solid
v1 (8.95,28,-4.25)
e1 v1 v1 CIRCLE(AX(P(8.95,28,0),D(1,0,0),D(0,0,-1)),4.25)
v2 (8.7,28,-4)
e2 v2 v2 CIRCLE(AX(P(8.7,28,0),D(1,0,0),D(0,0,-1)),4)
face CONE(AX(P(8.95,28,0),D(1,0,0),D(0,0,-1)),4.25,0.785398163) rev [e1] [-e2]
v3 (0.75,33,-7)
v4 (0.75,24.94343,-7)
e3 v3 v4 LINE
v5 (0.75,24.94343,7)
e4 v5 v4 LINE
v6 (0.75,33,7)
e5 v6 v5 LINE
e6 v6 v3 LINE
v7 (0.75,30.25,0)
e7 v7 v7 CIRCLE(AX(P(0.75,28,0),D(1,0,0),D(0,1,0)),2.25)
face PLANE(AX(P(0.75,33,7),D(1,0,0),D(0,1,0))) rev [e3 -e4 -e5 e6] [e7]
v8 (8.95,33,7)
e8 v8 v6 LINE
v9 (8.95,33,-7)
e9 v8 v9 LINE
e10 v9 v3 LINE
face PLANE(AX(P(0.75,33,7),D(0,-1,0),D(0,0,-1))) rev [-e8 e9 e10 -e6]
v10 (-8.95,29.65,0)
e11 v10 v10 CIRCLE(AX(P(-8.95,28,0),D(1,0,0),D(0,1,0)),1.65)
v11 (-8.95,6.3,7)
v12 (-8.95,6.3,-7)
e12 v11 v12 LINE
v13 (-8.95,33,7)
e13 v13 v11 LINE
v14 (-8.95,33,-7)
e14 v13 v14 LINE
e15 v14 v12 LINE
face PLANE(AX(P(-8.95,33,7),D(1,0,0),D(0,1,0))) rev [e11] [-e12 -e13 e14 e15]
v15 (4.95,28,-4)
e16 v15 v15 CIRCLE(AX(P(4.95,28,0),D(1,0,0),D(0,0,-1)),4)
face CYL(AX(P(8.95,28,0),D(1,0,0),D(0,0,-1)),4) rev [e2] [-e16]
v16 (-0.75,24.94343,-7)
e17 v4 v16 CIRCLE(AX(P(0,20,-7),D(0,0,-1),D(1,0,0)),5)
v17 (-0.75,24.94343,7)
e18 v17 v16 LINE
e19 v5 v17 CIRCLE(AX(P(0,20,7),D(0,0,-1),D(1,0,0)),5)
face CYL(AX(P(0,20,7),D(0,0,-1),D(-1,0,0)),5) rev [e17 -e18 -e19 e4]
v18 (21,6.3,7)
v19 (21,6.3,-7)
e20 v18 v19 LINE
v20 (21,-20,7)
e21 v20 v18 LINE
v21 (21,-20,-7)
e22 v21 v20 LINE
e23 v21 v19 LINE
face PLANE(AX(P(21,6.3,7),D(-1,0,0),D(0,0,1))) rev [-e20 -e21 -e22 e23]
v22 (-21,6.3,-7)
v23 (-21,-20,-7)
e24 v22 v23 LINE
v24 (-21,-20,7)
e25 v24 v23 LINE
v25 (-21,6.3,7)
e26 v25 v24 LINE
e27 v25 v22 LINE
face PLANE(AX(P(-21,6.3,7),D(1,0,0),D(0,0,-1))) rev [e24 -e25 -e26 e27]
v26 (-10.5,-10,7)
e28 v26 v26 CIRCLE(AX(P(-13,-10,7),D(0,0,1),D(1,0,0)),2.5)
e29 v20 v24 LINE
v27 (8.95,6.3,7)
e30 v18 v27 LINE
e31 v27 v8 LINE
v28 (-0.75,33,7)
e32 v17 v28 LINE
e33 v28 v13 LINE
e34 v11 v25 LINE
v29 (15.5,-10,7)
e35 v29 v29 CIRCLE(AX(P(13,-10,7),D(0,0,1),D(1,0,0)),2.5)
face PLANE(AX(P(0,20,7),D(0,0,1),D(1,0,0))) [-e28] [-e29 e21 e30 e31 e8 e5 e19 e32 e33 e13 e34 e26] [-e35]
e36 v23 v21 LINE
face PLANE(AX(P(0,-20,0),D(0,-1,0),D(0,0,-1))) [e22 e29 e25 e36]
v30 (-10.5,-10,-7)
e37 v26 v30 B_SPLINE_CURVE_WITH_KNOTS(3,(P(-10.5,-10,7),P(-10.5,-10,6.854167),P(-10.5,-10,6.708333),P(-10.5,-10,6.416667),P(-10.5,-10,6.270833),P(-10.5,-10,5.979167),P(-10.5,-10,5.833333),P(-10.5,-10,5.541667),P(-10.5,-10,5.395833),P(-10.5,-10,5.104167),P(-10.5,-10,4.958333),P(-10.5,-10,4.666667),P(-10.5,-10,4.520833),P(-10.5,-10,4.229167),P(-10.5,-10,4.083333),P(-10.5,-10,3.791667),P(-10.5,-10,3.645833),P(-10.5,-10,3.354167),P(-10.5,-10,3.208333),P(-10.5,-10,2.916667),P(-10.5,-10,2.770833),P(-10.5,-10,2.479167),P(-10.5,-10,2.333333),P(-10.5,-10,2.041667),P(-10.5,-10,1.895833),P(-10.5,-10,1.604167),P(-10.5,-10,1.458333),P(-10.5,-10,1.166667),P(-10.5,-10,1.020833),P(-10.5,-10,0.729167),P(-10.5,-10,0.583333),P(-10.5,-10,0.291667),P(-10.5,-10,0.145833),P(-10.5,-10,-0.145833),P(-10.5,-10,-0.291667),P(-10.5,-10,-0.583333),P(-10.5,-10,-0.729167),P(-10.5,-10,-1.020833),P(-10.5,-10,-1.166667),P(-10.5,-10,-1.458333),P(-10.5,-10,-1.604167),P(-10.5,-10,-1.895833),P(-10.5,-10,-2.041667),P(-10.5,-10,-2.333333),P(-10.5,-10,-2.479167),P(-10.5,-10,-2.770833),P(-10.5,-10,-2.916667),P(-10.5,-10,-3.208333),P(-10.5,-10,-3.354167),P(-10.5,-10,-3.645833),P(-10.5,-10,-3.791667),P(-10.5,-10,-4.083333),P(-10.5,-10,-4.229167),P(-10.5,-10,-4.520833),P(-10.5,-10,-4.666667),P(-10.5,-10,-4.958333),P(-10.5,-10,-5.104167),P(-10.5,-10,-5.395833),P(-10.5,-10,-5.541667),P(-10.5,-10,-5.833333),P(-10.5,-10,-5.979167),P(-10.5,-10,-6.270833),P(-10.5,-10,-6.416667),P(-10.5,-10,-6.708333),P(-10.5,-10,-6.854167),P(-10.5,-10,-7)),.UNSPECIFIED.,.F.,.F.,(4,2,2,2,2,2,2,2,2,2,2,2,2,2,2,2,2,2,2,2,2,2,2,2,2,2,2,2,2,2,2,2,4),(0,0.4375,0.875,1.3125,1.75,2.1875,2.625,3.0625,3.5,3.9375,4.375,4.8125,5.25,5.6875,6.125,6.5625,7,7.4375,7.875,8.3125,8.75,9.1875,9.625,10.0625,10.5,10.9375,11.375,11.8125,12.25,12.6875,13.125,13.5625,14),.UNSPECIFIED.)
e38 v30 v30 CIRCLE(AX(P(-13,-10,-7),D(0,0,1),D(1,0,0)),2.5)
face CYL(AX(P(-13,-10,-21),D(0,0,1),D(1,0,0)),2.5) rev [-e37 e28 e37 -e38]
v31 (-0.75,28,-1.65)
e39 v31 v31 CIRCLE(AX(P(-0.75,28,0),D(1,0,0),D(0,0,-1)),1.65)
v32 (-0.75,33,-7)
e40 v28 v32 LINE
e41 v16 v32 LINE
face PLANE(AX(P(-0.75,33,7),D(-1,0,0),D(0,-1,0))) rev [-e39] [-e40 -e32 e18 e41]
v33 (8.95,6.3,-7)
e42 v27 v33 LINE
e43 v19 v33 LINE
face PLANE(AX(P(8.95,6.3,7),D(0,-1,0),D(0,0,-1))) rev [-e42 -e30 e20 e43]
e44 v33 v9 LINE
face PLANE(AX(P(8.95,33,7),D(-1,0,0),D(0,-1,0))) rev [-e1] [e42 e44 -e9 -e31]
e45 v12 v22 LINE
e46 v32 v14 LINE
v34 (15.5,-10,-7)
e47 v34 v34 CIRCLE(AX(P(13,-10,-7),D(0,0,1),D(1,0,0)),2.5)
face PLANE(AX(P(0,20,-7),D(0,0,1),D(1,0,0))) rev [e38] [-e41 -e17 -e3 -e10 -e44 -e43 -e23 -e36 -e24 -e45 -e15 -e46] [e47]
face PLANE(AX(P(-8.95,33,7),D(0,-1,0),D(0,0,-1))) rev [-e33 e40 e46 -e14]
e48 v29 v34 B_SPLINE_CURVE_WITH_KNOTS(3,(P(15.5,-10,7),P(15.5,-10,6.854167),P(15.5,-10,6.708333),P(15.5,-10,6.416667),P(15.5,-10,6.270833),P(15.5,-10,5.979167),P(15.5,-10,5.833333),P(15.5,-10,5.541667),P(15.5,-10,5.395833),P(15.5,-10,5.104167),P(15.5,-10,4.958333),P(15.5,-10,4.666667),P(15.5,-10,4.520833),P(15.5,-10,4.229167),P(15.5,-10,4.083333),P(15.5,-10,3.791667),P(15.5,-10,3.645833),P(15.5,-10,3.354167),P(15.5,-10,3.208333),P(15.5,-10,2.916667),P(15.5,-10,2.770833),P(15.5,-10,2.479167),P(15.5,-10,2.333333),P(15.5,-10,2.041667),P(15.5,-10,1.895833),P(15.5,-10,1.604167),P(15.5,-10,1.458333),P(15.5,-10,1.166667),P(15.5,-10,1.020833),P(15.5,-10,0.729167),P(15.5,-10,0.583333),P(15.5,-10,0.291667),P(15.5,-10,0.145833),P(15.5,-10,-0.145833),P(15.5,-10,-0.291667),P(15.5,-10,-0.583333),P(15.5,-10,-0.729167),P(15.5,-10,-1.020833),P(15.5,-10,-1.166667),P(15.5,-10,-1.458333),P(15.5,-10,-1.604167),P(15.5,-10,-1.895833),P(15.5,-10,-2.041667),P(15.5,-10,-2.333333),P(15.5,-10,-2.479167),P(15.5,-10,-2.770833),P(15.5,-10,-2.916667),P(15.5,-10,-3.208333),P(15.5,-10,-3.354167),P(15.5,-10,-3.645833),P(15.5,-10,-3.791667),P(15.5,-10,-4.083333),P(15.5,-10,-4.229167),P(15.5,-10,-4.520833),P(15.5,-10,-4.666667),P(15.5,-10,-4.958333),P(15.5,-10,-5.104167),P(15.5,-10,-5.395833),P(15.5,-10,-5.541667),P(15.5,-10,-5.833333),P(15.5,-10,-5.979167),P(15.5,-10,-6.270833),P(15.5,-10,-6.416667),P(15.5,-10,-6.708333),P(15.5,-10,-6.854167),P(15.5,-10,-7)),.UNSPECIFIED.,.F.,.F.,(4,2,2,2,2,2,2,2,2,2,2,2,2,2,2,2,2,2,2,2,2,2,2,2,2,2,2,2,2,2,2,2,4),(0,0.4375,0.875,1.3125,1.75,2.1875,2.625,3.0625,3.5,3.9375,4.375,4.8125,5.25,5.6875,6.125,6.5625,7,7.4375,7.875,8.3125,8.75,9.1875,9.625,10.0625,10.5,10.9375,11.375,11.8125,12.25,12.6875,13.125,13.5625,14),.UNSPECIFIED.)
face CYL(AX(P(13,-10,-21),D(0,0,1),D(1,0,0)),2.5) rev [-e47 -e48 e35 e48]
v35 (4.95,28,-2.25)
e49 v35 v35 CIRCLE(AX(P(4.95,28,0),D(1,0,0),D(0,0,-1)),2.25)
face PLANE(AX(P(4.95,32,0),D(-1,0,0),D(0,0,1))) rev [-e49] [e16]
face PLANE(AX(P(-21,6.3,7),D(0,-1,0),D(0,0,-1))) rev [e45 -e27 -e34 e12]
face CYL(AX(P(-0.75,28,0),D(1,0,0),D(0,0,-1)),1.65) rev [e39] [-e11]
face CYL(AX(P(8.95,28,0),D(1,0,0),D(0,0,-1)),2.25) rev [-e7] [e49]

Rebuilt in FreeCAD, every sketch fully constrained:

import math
import FreeCAD as App
import Part
import Sketcher
Q = App.Units.Quantity

doc = App.newDocument("Part")
body = doc.addObject("PartDesign::Body", "Body")

sketch1 = doc.addObject("Sketcher::SketchObject", "Sketch")
body.addObject(sketch1)
sketch1.AttachmentSupport = (doc.XY_Plane, [""])
sketch1.MapMode = "FlatFace"
sketch1.addGeometry(Part.LineSegment(App.Vector(-8.9, 6.3, 0), App.Vector(-21, 6.3, 0)), False)
sketch1.addGeometry(Part.LineSegment(App.Vector(-21, 6.3, 0), App.Vector(-21, 0, 0)), False)
sketch1.addGeometry(Part.LineSegment(App.Vector(-21, 0, 0), App.Vector(21, 0, 0)), False)
sketch1.addGeometry(Part.LineSegment(App.Vector(21, 0, 0), App.Vector(21, 6.3, 0)), False)
sketch1.addGeometry(Part.LineSegment(App.Vector(21, 6.3, 0), App.Vector(8.9, 6.3, 0)), False)
sketch1.addGeometry(Part.LineSegment(App.Vector(8.9, 6.3, 0), App.Vector(8.9, 33, 0)), False)
sketch1.addGeometry(Part.LineSegment(App.Vector(8.9, 33, 0), App.Vector(0.8, 33, 0)), False)
sketch1.addGeometry(Part.LineSegment(App.Vector(0.8, 33, 0), App.Vector(0.8, 24.9, 0)), False)
sketch1.addGeometry(Part.ArcOfCircle(Part.Circle(App.Vector(0, 20, 0), App.Vector(0, 0, 1), 5), math.radians(99), math.radians(441)), False)
sketch1.addGeometry(Part.LineSegment(App.Vector(-0.8, 24.9, 0), App.Vector(-0.8, 33, 0)), False)
sketch1.addGeometry(Part.LineSegment(App.Vector(-0.8, 33, 0), App.Vector(-8.9, 33, 0)), False)
sketch1.addGeometry(Part.LineSegment(App.Vector(-8.9, 33, 0), App.Vector(-8.9, 6.3, 0)), False)
sketch1.addConstraint(Sketcher.Constraint("Coincident", 0, 2, 1, 1))
sketch1.addConstraint(Sketcher.Constraint("Coincident", 1, 2, 2, 1))
sketch1.addConstraint(Sketcher.Constraint("Coincident", 2, 2, 3, 1))
sketch1.addConstraint(Sketcher.Constraint("Coincident", 3, 2, 4, 1))
sketch1.addConstraint(Sketcher.Constraint("Coincident", 4, 2, 5, 1))
sketch1.addConstraint(Sketcher.Constraint("Coincident", 5, 2, 6, 1))
sketch1.addConstraint(Sketcher.Constraint("Coincident", 6, 2, 7, 1))
sketch1.addConstraint(Sketcher.Constraint("Coincident", 7, 2, 8, 2))
sketch1.addConstraint(Sketcher.Constraint("Coincident", 8, 1, 9, 1))
sketch1.addConstraint(Sketcher.Constraint("Coincident", 9, 2, 10, 1))
sketch1.addConstraint(Sketcher.Constraint("Coincident", 10, 2, 11, 1))
sketch1.addConstraint(Sketcher.Constraint("Coincident", 11, 2, 0, 1))
sketch1.addConstraint(Sketcher.Constraint("Horizontal", 0))
sketch1.addConstraint(Sketcher.Constraint("Vertical", 1))
sketch1.addConstraint(Sketcher.Constraint("Horizontal", 2))
sketch1.addConstraint(Sketcher.Constraint("Vertical", 3))
sketch1.addConstraint(Sketcher.Constraint("Horizontal", 4))
sketch1.addConstraint(Sketcher.Constraint("Vertical", 5))
sketch1.addConstraint(Sketcher.Constraint("Horizontal", 6))
sketch1.addConstraint(Sketcher.Constraint("Vertical", 7))
sketch1.addConstraint(Sketcher.Constraint("Vertical", 9))
sketch1.addConstraint(Sketcher.Constraint("Horizontal", 10))
sketch1.addConstraint(Sketcher.Constraint("Vertical", 11))
sketch1.addConstraint(Sketcher.Constraint("Symmetric", 1, 2, 2, 2, -1, 1))
sketch1.addConstraint(Sketcher.Constraint("Symmetric", 7, 2, 8, 1, -2))
sketch1.addConstraint(Sketcher.Constraint("Symmetric", 5, 2, 10, 2, -2))
sketch1.addConstraint(Sketcher.Constraint("Horizontal", 0, 2, 3, 2))
sketch1.addConstraint(Sketcher.Constraint("Radius", 8, Q("5 mm")))
sketch1.addConstraint(Sketcher.Constraint("DistanceX", 2, 1, 2, 2, Q("42 mm")))
sketch1.addConstraint(Sketcher.Constraint("DistanceX", 6, 2, 6, 1, Q("8.2 mm")))
sketch1.addConstraint(Sketcher.Constraint("DistanceY", 1, 2, 1, 1, Q("6.3 mm")))
sketch1.addConstraint(Sketcher.Constraint("DistanceY", 5, 1, 5, 2, Q("26.7 mm")))
sketch1.addConstraint(Sketcher.Constraint("DistanceY", -1, 1, 8, 3, Q("20 mm")))
sketch1.addConstraint(Sketcher.Constraint("DistanceX", 0, 2, 0, 1, Q("12.05 mm")))
pad1 = doc.addObject("PartDesign::Pad", "Pad")
body.addObject(pad1)
pad1.Profile = sketch1
pad1.Length = 14
pad1.Midplane = True

sketch2 = doc.addObject("Sketcher::SketchObject", "Sketch001")
body.addObject(sketch2)
sketch2.AttachmentSupport = (doc.XZ_Plane, [""])
sketch2.MapMode = "FlatFace"
sketch2.AttachmentOffset = App.Placement(App.Vector(0, 0, -28), App.Rotation())
sketch2.addGeometry(Part.LineSegment(App.Vector(0.75, 0, 0), App.Vector(8.95, 0, 0)), False)
sketch2.addGeometry(Part.LineSegment(App.Vector(8.95, 0, 0), App.Vector(8.95, -4.25, 0)), False)
sketch2.addGeometry(Part.LineSegment(App.Vector(8.95, -4.25, 0), App.Vector(8.7, -4, 0)), False)
sketch2.addGeometry(Part.LineSegment(App.Vector(8.7, -4, 0), App.Vector(4.95, -4, 0)), False)
sketch2.addGeometry(Part.LineSegment(App.Vector(4.95, -4, 0), App.Vector(4.95, -2.25, 0)), False)
sketch2.addGeometry(Part.LineSegment(App.Vector(4.95, -2.25, 0), App.Vector(0.75, -2.25, 0)), False)
sketch2.addGeometry(Part.LineSegment(App.Vector(0.75, -2.25, 0), App.Vector(0.75, 0, 0)), False)
sketch2.addConstraint(Sketcher.Constraint("Coincident", 0, 2, 1, 1))
sketch2.addConstraint(Sketcher.Constraint("Coincident", 1, 2, 2, 1))
sketch2.addConstraint(Sketcher.Constraint("Coincident", 2, 2, 3, 1))
sketch2.addConstraint(Sketcher.Constraint("Coincident", 3, 2, 4, 1))
sketch2.addConstraint(Sketcher.Constraint("Coincident", 4, 2, 5, 1))
sketch2.addConstraint(Sketcher.Constraint("Coincident", 5, 2, 6, 1))
sketch2.addConstraint(Sketcher.Constraint("Coincident", 6, 2, 0, 1))
sketch2.addConstraint(Sketcher.Constraint("Horizontal", 0))
sketch2.addConstraint(Sketcher.Constraint("Vertical", 1))
sketch2.addConstraint(Sketcher.Constraint("Horizontal", 3))
sketch2.addConstraint(Sketcher.Constraint("Vertical", 4))
sketch2.addConstraint(Sketcher.Constraint("Horizontal", 5))
sketch2.addConstraint(Sketcher.Constraint("Vertical", 6))
sketch2.addConstraint(Sketcher.Constraint("PointOnObject", 0, 2, -1))
sketch2.addConstraint(Sketcher.Constraint("Angle", 2, Q("135 deg")))
sketch2.addConstraint(Sketcher.Constraint("DistanceX", 0, 1, 0, 2, Q("8.2 mm")))
sketch2.addConstraint(Sketcher.Constraint("DistanceX", 5, 2, 5, 1, Q("4.2 mm")))
sketch2.addConstraint(Sketcher.Constraint("DistanceY", 2, 2, -1, 1, Q("4 mm")))
sketch2.addConstraint(Sketcher.Constraint("DistanceY", 1, 2, 4, 2, Q("2 mm")))
sketch2.addConstraint(Sketcher.Constraint("DistanceX", 3, 2, 3, 1, Q("3.75 mm")))
sketch2.addConstraint(Sketcher.Constraint("DistanceX", -1, 1, 2, 2, Q("8.7 mm")))
groove = doc.addObject("PartDesign::Groove", "Groove")
body.addObject(groove)
groove.Profile = sketch2
groove.ReferenceAxis = (sketch2, ["H_Axis"])
groove.Angle = 360

sketch3 = doc.addObject("Sketcher::SketchObject", "Sketch002")
body.addObject(sketch3)
sketch3.AttachmentSupport = (doc.YZ_Plane, [""])
sketch3.MapMode = "FlatFace"
sketch3.AttachmentOffset = App.Placement(App.Vector(0, 0, -0.75), App.Rotation())
sketch3.addGeometry(Part.Circle(App.Vector(28, 0, 0), App.Vector(0, 0, 1), 1.6), False)
sketch3.addConstraint(Sketcher.Constraint("PointOnObject", 0, 3, -1))
sketch3.addConstraint(Sketcher.Constraint("Diameter", 0, Q("3.3 mm")))
sketch3.addConstraint(Sketcher.Constraint("DistanceX", -1, 1, 0, 3, Q("28 mm")))
doc.recompute()
hole = doc.addObject("PartDesign::Hole", "Hole")
body.addObject(hole)
hole.Profile = sketch3
hole.ThreadType = "None"
hole.Diameter = 3.3
hole.DepthType = "ThroughAll"

sketch4 = doc.addObject("Sketcher::SketchObject", "Sketch003")
body.addObject(sketch4)
sketch4.AttachmentSupport = (doc.XZ_Plane, [""])
sketch4.MapMode = "FlatFace"
sketch4.addGeometry(Part.LineSegment(App.Vector(-21, 7, 0), App.Vector(-21, -7, 0)), False)
sketch4.addGeometry(Part.LineSegment(App.Vector(-21, -7, 0), App.Vector(21, -7, 0)), False)
sketch4.addGeometry(Part.LineSegment(App.Vector(21, -7, 0), App.Vector(21, 7, 0)), False)
sketch4.addGeometry(Part.LineSegment(App.Vector(21, 7, 0), App.Vector(-21, 7, 0)), False)
sketch4.addConstraint(Sketcher.Constraint("Coincident", 0, 2, 1, 1))
sketch4.addConstraint(Sketcher.Constraint("Coincident", 1, 2, 2, 1))
sketch4.addConstraint(Sketcher.Constraint("Coincident", 2, 2, 3, 1))
sketch4.addConstraint(Sketcher.Constraint("Coincident", 3, 2, 0, 1))
sketch4.addConstraint(Sketcher.Constraint("Vertical", 0))
sketch4.addConstraint(Sketcher.Constraint("Horizontal", 1))
sketch4.addConstraint(Sketcher.Constraint("Vertical", 2))
sketch4.addConstraint(Sketcher.Constraint("Horizontal", 3))
sketch4.addConstraint(Sketcher.Constraint("Symmetric", 0, 2, 2, 2, -1, 1))
sketch4.addConstraint(Sketcher.Constraint("DistanceX", 1, 1, 1, 2, Q("42 mm")))
sketch4.addConstraint(Sketcher.Constraint("DistanceY", 0, 2, 0, 1, Q("14 mm")))
pad2 = doc.addObject("PartDesign::Pad", "Pad001")
body.addObject(pad2)
pad2.Profile = sketch4
pad2.Length = 20

sketch5 = doc.addObject("Sketcher::SketchObject", "Sketch004")
body.addObject(sketch5)
sketch5.AttachmentSupport = (doc.XY_Plane, [""])
sketch5.MapMode = "FlatFace"
sketch5.AttachmentOffset = App.Placement(App.Vector(0, 0, 7), App.Rotation())
sketch5.addGeometry(Part.Circle(App.Vector(-13, -10, 0), App.Vector(0, 0, 1), 2.5), False)
sketch5.addGeometry(Part.Circle(App.Vector(13, -10, 0), App.Vector(0, 0, 1), 2.5), False)
sketch5.addConstraint(Sketcher.Constraint("Equal", 0, 1))
sketch5.addConstraint(Sketcher.Constraint("Symmetric", 0, 3, 1, 3, -2))
sketch5.addConstraint(Sketcher.Constraint("Diameter", 0, Q("5 mm")))
sketch5.addConstraint(Sketcher.Constraint("DistanceX", 0, 3, -1, 1, Q("13 mm")))
sketch5.addConstraint(Sketcher.Constraint("DistanceY", 0, 3, -1, 1, Q("10 mm")))
pocket1 = doc.addObject("PartDesign::Pocket", "Pocket")
body.addObject(pocket1)
pocket1.Profile = sketch5
pocket1.Length = 28

doc.recompute()
